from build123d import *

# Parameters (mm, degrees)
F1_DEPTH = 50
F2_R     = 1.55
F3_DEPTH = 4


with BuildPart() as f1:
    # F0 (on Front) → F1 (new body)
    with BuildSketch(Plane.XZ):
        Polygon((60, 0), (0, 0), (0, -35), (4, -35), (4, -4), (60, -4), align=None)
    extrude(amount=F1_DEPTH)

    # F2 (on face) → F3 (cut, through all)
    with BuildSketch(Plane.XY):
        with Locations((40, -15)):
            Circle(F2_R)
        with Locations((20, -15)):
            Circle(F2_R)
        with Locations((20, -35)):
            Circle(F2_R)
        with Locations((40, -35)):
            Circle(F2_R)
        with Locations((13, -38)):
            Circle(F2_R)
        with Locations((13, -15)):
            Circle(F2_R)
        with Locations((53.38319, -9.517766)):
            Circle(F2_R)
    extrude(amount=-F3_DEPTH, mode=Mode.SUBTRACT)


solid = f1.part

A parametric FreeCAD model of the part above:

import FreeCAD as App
import Part
import Sketcher

doc = App.newDocument("Part")
params = doc.addObject("Spreadsheet::Sheet", "Params")
for row, (alias, value) in enumerate([
    ("sketch1_width", "60 mm"),
    ("sketch1_width2", "4 mm"),
    ("sketch1_height", "35 mm"),
    ("pad1_length", "50 mm"),
    ("sketch2_diameter", "3.1 mm"),
], start=1):
    params.set(f"A{row}", alias)
    params.set(f"B{row}", "=" + value)
    params.setAlias(f"B{row}", alias)

body = doc.addObject("PartDesign::Body", "Body")

# Sketch on XZ plane
sketch1 = body.newObject("Sketcher::SketchObject", "Sketch")
sketch1.AttachmentSupport = (doc.getObject("XZ_Plane"), [""])
sketch1.MapMode = "FlatFace"
sketch1.addGeometry([
    Part.LineSegment(App.Vector(60, 0, 0), App.Vector(0, 0, 0)),  # 0
    Part.LineSegment(App.Vector(0, 0, 0), App.Vector(0, -35, 0)),  # 1
    Part.LineSegment(App.Vector(0, -35, 0), App.Vector(4, -35, 0)),  # 2
    Part.LineSegment(App.Vector(4, -35, 0), App.Vector(4, -4, 0)),  # 3
    Part.LineSegment(App.Vector(4, -4, 0), App.Vector(60, -4, 0)),  # 4
    Part.LineSegment(App.Vector(60, -4, 0), App.Vector(60, 0, 0)),  # 5
], False)
sketch1.addConstraint([
    Sketcher.Constraint("Coincident", 0, 2, 1, 1),
    Sketcher.Constraint("Coincident", 1, 2, 2, 1),
    Sketcher.Constraint("Coincident", 2, 2, 3, 1),
    Sketcher.Constraint("Coincident", 3, 2, 4, 1),
    Sketcher.Constraint("Coincident", 4, 2, 5, 1),
    Sketcher.Constraint("Coincident", 5, 2, 0, 1),
    Sketcher.Constraint("Horizontal", 0),
    Sketcher.Constraint("Vertical", 1),
    Sketcher.Constraint("Horizontal", 2),
    Sketcher.Constraint("Vertical", 3),
    Sketcher.Constraint("Horizontal", 4),
    Sketcher.Constraint("Vertical", 5),
    Sketcher.Constraint("Coincident", 0, 2, -1, 1),
    Sketcher.Constraint("Equal", 2, 5),
    Sketcher.Constraint("DistanceX", 0, 2, 0, 1, 60.0),
    Sketcher.Constraint("DistanceX", 2, 1, 2, 2, 4.0),
    Sketcher.Constraint("DistanceY", 1, 2, 1, 1, 35.0),
])
sketch1.setExpression("Constraints[14]", "Params.sketch1_width")
sketch1.setExpression("Constraints[15]", "Params.sketch1_width2")
sketch1.setExpression("Constraints[16]", "Params.sketch1_height")
pad1 = body.newObject("PartDesign::Pad", "Pad")
pad1.Profile = sketch1
pad1.setExpression("Length", "Params.pad1_length")

# Sketch on XY plane
sketch2 = body.newObject("Sketcher::SketchObject", "Sketch001")
sketch2.AttachmentSupport = (doc.getObject("XY_Plane"), [""])
sketch2.MapMode = "FlatFace"
sketch2.addGeometry([
    Part.Circle(App.Vector(40, -15, 0), App.Vector(0, 0, 1), 1.6),  # 0
    Part.Circle(App.Vector(20, -15, 0), App.Vector(0, 0, 1), 1.6),  # 1
    Part.Circle(App.Vector(20, -35, 0), App.Vector(0, 0, 1), 1.6),  # 2
    Part.Circle(App.Vector(40, -35, 0), App.Vector(0, 0, 1), 1.6),  # 3
    Part.Circle(App.Vector(13, -38, 0), App.Vector(0, 0, 1), 1.6),  # 4
    Part.Circle(App.Vector(13, -15, 0), App.Vector(0, 0, 1), 1.6),  # 5
    Part.Circle(App.Vector(53.4, -9.5, 0), App.Vector(0, 0, 1), 1.6),  # 6
], False)
sketch2.addConstraint([
    Sketcher.Constraint("Equal", 0, 1),
    Sketcher.Constraint("Equal", 1, 2),
    Sketcher.Constraint("Equal", 2, 3),
    Sketcher.Constraint("Equal", 3, 4),
    Sketcher.Constraint("Equal", 4, 5),
    Sketcher.Constraint("Equal", 5, 6),
    Sketcher.Constraint("Horizontal", 0, 3, 1, 3),
    Sketcher.Constraint("Horizontal", 2, 3, 3, 3),
    Sketcher.Constraint("Horizontal", 1, 3, 5, 3),
    Sketcher.Constraint("Vertical", 1, 3, 2, 3),
    Sketcher.Constraint("Vertical", 0, 3, 3, 3),
    Sketcher.Constraint("Vertical", 4, 3, 5, 3),
    Sketcher.Constraint("Diameter", 0, 3.1),
    Sketcher.Constraint("DistanceX", -1, 1, 0, 3, 40.0),
    Sketcher.Constraint("DistanceY", 0, 3, -1, 1, 15.0),
    Sketcher.Constraint("DistanceX", -1, 1, 1, 3, 20.0),
    Sketcher.Constraint("DistanceY", 2, 3, -1, 1, 35.0),
    Sketcher.Constraint("DistanceX", -1, 1, 4, 3, 13.0),
    Sketcher.Constraint("DistanceY", 4, 3, -1, 1, 38.0),
    Sketcher.Constraint("DistanceX", -1, 1, 6, 3, 53.38319),
    Sketcher.Constraint("DistanceY", 6, 3, -1, 1, 9.517766),
])
sketch2.setExpression("Constraints[12]", "Params.sketch2_diameter")
pocket1 = body.newObject("PartDesign::Pocket", "Pocket")
pocket1.Profile = sketch2
pocket1.Type = "ThroughAll"

doc.recompute()
